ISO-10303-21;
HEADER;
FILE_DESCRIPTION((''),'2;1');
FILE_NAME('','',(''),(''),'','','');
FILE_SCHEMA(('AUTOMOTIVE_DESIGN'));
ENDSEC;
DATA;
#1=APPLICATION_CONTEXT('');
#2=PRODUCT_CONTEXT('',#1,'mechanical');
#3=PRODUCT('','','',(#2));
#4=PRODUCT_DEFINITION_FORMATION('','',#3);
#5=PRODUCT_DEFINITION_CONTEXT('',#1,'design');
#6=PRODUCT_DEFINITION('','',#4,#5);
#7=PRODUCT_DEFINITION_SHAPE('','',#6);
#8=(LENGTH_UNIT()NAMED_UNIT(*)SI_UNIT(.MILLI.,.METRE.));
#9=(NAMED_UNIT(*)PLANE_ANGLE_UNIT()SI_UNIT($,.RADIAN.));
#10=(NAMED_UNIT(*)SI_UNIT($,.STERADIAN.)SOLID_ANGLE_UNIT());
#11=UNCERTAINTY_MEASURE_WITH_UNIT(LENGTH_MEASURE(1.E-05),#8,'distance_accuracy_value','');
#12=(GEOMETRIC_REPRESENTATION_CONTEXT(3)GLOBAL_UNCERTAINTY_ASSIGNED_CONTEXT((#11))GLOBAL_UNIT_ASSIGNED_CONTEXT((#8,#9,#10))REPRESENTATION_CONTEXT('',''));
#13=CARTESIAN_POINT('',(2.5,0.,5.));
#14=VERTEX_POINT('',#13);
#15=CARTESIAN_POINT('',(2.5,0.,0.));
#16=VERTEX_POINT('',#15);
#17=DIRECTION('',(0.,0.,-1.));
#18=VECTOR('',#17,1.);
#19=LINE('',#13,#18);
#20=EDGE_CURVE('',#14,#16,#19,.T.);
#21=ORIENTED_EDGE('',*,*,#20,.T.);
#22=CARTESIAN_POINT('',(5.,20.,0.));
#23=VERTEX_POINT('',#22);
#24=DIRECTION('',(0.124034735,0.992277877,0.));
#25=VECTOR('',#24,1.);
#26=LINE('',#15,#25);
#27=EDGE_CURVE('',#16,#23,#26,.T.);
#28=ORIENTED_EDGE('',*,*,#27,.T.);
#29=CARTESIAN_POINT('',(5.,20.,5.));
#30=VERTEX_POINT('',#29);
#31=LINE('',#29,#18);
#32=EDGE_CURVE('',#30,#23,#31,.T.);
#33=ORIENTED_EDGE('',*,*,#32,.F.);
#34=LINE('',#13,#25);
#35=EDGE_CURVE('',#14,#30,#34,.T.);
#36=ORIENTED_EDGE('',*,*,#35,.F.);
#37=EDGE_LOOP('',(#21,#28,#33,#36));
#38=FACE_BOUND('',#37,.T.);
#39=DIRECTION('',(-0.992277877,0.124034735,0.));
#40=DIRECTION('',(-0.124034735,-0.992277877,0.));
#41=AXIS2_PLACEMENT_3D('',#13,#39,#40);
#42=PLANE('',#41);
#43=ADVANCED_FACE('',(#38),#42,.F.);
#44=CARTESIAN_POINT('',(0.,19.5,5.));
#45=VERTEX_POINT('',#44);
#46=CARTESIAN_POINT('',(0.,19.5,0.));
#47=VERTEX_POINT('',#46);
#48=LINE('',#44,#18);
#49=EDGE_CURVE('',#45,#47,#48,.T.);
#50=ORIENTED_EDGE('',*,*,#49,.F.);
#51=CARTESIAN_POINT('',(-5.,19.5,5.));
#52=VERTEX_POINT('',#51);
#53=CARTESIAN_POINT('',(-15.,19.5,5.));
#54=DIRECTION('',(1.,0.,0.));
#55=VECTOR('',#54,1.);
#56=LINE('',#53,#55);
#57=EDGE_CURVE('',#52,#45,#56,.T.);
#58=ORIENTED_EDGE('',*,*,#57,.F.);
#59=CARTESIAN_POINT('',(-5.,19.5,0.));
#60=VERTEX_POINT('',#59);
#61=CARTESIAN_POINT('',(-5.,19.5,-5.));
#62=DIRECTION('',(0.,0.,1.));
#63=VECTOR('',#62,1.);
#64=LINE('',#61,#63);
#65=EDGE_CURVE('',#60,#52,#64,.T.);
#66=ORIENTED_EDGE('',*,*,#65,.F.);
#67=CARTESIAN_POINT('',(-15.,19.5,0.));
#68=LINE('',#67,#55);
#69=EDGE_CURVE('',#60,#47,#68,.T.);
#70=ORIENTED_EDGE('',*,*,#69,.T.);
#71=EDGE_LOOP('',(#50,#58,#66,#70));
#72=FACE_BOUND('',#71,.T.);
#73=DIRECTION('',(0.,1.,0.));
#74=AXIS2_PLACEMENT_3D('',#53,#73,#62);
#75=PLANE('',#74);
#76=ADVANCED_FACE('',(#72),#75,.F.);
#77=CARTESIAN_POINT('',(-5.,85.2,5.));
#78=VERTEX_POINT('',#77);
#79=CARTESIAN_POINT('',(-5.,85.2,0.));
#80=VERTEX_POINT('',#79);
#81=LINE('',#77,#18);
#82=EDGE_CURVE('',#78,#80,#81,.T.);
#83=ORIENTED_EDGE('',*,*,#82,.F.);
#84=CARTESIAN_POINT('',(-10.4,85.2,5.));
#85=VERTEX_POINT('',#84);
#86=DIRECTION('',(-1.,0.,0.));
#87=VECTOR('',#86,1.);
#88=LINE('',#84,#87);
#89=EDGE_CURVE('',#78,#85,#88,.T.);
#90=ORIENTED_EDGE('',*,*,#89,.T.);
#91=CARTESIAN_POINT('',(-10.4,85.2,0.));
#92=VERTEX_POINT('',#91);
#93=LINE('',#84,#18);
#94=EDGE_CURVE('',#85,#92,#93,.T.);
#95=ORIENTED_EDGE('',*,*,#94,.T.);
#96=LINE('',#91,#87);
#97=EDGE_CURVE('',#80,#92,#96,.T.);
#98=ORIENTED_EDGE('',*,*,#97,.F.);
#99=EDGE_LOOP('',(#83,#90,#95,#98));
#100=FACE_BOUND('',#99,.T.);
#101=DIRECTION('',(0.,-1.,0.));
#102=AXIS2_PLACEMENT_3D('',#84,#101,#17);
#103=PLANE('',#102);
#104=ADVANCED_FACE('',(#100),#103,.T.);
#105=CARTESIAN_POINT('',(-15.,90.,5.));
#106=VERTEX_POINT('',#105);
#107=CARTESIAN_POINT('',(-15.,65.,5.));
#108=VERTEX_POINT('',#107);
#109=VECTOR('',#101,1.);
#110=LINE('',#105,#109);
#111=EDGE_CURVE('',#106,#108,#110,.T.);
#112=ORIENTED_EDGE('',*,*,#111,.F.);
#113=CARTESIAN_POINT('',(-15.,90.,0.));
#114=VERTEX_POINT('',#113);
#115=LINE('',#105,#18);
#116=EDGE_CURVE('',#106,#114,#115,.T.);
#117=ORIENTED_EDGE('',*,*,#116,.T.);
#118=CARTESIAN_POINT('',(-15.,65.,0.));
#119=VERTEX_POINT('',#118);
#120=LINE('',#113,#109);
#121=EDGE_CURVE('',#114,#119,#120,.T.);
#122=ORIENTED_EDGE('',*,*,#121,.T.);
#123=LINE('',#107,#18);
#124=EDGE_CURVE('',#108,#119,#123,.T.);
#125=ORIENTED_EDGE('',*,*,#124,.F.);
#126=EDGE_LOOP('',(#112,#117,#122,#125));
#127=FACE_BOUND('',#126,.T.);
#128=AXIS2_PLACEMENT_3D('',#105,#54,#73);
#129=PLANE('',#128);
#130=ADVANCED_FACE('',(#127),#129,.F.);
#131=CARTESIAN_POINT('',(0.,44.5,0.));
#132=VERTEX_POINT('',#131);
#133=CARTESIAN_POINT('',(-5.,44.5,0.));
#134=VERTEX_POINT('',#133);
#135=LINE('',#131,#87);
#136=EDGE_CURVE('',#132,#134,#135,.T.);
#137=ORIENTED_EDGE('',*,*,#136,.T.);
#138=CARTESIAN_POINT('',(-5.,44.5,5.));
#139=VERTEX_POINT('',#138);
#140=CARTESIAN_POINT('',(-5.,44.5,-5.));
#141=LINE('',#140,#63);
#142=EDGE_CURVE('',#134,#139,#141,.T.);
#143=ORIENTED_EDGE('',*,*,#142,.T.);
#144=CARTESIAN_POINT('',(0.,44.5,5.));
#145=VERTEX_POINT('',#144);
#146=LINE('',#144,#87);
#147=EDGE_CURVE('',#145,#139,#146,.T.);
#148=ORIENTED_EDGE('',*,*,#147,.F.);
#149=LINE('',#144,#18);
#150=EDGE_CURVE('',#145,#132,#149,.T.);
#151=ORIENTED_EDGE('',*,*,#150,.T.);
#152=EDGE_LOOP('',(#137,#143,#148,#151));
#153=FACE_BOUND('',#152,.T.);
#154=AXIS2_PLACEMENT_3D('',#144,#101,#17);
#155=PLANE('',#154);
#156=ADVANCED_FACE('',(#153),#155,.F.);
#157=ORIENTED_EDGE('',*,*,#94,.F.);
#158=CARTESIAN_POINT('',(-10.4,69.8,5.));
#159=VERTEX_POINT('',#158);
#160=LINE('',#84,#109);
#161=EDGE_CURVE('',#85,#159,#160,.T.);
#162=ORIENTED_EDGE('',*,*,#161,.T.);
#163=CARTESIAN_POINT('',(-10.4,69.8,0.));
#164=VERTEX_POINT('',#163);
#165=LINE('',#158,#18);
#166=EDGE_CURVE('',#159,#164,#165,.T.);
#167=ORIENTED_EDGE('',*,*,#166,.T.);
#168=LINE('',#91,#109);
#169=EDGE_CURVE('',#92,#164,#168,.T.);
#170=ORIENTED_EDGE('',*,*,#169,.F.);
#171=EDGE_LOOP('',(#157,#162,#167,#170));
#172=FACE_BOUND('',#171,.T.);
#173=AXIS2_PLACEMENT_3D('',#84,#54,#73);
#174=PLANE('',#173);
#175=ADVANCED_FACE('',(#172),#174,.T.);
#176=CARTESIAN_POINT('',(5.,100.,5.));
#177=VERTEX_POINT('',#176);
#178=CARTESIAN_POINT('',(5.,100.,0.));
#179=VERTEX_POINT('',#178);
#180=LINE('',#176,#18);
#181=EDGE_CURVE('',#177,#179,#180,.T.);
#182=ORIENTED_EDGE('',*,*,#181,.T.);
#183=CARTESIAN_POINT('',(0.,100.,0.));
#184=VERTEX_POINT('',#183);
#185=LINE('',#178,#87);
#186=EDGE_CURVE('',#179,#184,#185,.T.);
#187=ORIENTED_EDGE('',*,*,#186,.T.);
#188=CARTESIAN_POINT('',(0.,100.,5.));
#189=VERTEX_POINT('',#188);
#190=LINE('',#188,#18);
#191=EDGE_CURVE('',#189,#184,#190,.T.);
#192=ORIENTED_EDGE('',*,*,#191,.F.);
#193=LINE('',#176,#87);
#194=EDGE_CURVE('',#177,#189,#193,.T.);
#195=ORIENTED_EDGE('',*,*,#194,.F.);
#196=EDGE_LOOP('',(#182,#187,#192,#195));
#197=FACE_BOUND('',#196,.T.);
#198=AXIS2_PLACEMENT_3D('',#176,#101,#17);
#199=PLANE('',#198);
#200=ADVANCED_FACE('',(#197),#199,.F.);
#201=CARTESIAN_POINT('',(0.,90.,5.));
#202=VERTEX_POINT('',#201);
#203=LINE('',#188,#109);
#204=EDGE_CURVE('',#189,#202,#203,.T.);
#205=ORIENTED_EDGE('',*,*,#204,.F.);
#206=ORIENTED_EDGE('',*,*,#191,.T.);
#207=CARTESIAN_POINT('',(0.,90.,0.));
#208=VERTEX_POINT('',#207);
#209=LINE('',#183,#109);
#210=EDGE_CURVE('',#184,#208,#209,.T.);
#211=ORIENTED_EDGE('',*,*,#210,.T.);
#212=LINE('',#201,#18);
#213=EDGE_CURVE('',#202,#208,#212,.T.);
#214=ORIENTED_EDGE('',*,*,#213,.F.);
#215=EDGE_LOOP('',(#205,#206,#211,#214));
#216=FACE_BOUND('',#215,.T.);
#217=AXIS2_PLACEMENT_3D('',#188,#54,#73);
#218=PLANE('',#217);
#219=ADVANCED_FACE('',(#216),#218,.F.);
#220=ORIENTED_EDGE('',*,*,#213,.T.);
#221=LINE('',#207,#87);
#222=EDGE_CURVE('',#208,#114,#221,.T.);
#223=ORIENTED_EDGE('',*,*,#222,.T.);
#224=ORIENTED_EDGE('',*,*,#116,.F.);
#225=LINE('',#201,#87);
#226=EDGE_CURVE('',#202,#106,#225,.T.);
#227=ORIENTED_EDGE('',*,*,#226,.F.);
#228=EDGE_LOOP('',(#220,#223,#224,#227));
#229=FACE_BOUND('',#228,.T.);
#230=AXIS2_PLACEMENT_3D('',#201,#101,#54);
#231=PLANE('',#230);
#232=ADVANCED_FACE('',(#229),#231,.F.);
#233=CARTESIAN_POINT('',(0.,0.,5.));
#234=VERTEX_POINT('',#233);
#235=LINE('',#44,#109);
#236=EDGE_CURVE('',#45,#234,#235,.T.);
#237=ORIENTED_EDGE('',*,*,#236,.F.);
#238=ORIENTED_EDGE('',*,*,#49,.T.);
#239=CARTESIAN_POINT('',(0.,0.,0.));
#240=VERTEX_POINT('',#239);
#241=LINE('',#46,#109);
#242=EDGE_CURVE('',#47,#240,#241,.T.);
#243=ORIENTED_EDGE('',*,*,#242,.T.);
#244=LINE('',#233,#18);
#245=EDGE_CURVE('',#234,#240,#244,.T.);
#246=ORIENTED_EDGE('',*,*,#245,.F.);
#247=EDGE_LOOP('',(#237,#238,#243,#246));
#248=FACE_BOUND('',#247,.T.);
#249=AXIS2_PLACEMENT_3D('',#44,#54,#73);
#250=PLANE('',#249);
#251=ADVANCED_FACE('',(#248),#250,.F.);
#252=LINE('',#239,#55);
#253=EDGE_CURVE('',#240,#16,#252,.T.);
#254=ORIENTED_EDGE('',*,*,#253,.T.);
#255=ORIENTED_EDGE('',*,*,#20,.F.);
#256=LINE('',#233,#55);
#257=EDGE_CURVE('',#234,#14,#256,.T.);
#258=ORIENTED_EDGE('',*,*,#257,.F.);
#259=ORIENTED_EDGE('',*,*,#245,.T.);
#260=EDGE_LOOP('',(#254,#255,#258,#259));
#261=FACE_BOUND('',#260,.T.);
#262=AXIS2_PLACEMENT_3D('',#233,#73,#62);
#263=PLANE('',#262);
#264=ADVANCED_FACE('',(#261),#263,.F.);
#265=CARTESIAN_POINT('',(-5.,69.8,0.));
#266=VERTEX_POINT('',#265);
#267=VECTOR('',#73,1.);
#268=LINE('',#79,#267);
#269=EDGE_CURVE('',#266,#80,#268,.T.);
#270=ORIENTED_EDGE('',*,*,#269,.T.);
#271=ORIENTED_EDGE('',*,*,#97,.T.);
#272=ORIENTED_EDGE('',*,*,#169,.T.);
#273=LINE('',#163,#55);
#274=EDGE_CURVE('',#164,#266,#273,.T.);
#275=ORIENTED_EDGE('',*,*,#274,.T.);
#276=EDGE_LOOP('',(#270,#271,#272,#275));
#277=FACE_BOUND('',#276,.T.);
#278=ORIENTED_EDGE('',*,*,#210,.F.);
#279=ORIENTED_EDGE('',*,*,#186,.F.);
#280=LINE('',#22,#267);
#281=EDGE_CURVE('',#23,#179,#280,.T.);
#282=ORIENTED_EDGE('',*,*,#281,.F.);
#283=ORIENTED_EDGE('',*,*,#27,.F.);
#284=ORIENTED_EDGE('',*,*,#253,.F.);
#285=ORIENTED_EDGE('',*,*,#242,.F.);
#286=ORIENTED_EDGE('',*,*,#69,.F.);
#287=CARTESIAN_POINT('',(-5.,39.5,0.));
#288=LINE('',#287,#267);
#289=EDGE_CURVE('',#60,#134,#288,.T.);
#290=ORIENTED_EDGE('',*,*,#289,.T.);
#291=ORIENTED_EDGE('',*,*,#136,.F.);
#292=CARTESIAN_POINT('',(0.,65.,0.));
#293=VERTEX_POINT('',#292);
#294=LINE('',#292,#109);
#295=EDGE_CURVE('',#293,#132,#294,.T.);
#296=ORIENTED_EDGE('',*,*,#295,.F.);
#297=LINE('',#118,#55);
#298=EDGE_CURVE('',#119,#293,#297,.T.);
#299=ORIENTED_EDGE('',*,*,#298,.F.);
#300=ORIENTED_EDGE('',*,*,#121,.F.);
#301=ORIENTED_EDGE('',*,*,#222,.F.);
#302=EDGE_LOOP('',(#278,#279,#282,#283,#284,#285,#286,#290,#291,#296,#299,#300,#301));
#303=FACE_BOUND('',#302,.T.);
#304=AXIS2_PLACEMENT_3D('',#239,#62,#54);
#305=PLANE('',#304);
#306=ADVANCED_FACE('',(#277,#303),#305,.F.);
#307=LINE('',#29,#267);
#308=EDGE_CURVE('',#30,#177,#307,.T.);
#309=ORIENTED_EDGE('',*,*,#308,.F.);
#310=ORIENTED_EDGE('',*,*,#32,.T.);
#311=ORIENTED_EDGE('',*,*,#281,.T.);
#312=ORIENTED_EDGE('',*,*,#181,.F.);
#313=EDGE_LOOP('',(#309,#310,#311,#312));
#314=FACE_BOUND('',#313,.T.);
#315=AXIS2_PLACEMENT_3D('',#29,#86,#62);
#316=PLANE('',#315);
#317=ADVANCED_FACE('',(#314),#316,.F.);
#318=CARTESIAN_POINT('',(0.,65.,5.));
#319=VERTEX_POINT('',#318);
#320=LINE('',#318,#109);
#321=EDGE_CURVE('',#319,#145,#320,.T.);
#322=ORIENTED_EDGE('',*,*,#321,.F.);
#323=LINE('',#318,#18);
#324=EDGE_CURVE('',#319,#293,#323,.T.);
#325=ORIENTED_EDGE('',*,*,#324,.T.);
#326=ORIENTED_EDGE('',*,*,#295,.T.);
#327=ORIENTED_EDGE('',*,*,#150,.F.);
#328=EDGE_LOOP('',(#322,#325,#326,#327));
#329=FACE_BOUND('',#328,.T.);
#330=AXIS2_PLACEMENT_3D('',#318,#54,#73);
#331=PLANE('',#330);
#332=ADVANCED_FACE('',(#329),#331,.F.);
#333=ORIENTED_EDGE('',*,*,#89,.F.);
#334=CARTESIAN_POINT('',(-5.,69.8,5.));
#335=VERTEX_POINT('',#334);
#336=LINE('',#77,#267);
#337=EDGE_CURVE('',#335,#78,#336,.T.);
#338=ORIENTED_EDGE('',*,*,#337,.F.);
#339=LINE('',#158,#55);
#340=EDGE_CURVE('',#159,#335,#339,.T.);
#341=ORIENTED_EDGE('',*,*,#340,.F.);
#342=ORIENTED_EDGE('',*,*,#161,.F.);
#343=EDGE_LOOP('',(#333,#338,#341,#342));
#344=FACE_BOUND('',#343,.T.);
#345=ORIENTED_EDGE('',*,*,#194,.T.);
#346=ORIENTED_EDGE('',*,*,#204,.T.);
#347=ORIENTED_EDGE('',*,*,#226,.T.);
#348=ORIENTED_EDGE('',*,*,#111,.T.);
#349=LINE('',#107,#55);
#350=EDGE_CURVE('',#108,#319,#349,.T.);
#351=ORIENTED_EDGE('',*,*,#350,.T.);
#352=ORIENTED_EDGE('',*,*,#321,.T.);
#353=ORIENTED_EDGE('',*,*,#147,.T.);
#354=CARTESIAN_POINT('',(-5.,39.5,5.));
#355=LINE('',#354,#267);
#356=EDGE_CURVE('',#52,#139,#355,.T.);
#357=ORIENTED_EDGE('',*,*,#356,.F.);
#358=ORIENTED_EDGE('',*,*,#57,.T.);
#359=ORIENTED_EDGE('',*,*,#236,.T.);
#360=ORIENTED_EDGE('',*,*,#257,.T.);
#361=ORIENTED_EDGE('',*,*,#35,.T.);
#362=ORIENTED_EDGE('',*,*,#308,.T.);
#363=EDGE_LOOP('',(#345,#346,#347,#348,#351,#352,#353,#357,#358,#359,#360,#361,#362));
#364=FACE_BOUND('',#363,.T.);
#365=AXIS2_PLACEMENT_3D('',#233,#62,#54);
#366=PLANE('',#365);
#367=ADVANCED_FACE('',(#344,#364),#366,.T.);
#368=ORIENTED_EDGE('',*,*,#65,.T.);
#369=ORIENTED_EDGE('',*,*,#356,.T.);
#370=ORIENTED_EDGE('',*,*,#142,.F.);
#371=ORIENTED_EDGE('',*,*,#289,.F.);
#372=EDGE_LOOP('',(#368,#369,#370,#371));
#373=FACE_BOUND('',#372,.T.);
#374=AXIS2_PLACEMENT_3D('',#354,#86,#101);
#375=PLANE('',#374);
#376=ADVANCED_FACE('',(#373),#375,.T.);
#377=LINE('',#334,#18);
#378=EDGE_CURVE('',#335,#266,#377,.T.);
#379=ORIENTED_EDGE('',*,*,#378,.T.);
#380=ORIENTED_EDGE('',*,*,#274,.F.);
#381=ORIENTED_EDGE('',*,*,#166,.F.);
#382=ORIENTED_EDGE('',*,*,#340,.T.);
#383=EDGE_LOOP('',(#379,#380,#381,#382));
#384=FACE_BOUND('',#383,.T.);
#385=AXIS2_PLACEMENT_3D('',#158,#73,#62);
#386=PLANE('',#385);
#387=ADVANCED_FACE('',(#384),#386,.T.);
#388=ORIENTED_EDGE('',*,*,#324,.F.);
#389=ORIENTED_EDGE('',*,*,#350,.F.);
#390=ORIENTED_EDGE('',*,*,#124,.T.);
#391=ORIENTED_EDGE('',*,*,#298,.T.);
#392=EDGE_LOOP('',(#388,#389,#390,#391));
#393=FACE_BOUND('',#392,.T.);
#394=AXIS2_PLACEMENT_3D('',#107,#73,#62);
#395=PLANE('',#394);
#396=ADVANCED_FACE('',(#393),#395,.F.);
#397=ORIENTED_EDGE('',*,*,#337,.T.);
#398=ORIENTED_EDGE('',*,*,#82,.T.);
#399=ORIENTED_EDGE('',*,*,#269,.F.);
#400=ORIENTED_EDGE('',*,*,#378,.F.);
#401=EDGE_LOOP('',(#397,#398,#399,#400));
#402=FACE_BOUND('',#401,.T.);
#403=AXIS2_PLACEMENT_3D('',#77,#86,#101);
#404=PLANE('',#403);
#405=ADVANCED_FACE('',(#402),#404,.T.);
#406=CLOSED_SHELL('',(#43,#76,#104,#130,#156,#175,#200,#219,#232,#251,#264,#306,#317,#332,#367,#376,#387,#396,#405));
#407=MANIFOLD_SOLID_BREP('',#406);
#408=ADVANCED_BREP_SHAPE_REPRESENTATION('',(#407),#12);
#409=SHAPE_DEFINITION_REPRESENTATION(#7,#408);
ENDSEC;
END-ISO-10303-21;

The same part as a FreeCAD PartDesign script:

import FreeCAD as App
import Part
import Sketcher
from FreeCAD import Vector


def add_polygon(sketch, points):
    """Adds a closed chain of lines whose ends are joined by coincident constraints."""
    first, n = sketch.GeometryCount, len(points)
    for a, b in zip(points, points[1:] + points[:1]):
        sketch.addGeometry(Part.LineSegment(App.Vector(*a, 0), App.Vector(*b, 0)), False)
    for i in range(n):
        sketch.addConstraint(Sketcher.Constraint("Coincident", first + i, 2, first + (i + 1) % n, 1))

doc = App.newDocument("Part")
params = doc.addObject("Spreadsheet::Sheet", "Params")
for row, (alias, value) in enumerate([
    ("sketch1_width", "5 mm"),
    ("sketch1_width2", "15 mm"),
    ("sketch1_height", "80 mm"),
    ("sketch1_height2", "10 mm"),
    ("sketch1_height3", "25 mm"),
    ("pad1_length", "5 mm"),
    ("sketch2_width", "10 mm"),
    ("sketch2_height", "25 mm"),
    ("pocket1_length", "10 mm"),
], start=1):
    params.set(f"A{row}", alias)
    params.set(f"B{row}", "=" + value)
    params.setAlias(f"B{row}", alias)

body = doc.addObject("PartDesign::Body", "Body")

sketch1 = body.newObject("Sketcher::SketchObject", "Sketch")
sketch1.AttachmentSupport = (doc.getObject("XY_Plane"), [""])
sketch1.MapMode = "FlatFace"
add_polygon(sketch1, [(0, 0), (2.5, 0), (5, 20), (5, 100), (0, 100), (0, 90), (-15, 90), (-15, 65), (0, 65), (0, 44.5), (-15, 44.5), (-15, 19.5), (0, 19.5)])
add_polygon(sketch1, [(-5, 24.5), (-10, 24.5), (-10, 39.5), (-5, 39.5)])
add_polygon(sketch1, [(-5, 69.8), (-10.4, 69.8), (-10.4, 85.2), (-5, 85.2)])
sketch1.addConstraint([
    Sketcher.Constraint("Horizontal", 0),
    Sketcher.Constraint("Vertical", 2),
    Sketcher.Constraint("Horizontal", 3),
    Sketcher.Constraint("Vertical", 4),
    Sketcher.Constraint("Horizontal", 5),
    Sketcher.Constraint("Vertical", 6),
    Sketcher.Constraint("Horizontal", 7),
    Sketcher.Constraint("Vertical", 8),
    Sketcher.Constraint("Horizontal", 9),
    Sketcher.Constraint("Vertical", 10),
    Sketcher.Constraint("Horizontal", 11),
    Sketcher.Constraint("Vertical", 12),
    Sketcher.Constraint("Horizontal", 13),
    Sketcher.Constraint("Vertical", 14),
    Sketcher.Constraint("Horizontal", 15),
    Sketcher.Constraint("Vertical", 16),
    Sketcher.Constraint("Horizontal", 17),
    Sketcher.Constraint("Vertical", 18),
    Sketcher.Constraint("Horizontal", 19),
    Sketcher.Constraint("Vertical", 20),
    Sketcher.Constraint("Coincident", 12, 2, -1, 1),
    Sketcher.Constraint("PointOnObject", 3, 2, -2),
    Sketcher.Constraint("PointOnObject", 7, 2, -2),
    Sketcher.Constraint("Vertical", 6, 2, 9, 2),
    Sketcher.Constraint("Vertical", 16, 2, 19, 2),
    Sketcher.Constraint("Equal", 3, 13),
    Sketcher.Constraint("Equal", 6, 10),
    Sketcher.Constraint("Equal", 11, 14),
    Sketcher.Constraint("DistanceX", 3, 2, 3, 1, 5.0),
    Sketcher.Constraint("DistanceX", 5, 2, 5, 1, 15.0),
    Sketcher.Constraint("DistanceY", 2, 1, 2, 2, 80.0),
    Sketcher.Constraint("DistanceY", 4, 2, 4, 1, 10.0),
    Sketcher.Constraint("DistanceY", 6, 2, 6, 1, 25.0),
    Sketcher.Constraint("DistanceX", 0, 1, 0, 2, 2.5),
    Sketcher.Constraint("DistanceX", 17, 2, 17, 1, 5.4),
    Sketcher.Constraint("DistanceY", 8, 2, 8, 1, 20.5),
    Sketcher.Constraint("DistanceY", 12, 2, 12, 1, 19.5),
    Sketcher.Constraint("DistanceY", 18, 1, 18, 2, 15.4),
    Sketcher.Constraint("DistanceX", 13, 2, -1, 1, 10.0),
    Sketcher.Constraint("DistanceY", 10, 2, 13, 2, 5.0),
    Sketcher.Constraint("DistanceY", -1, 1, 17, 2, 69.8),
])
sketch1.setExpression("Constraints[49]", "Params.sketch1_width")
sketch1.setExpression("Constraints[50]", "Params.sketch1_width2")
sketch1.setExpression("Constraints[51]", "Params.sketch1_height")
sketch1.setExpression("Constraints[52]", "Params.sketch1_height2")
sketch1.setExpression("Constraints[53]", "Params.sketch1_height3")
pad1 = body.newObject("PartDesign::Pad", "Pad")
pad1.Profile = sketch1
pad1.setExpression("Length", "Params.pad1_length")

sketch2 = body.newObject("Sketcher::SketchObject", "Sketch001")
sketch2.AttachmentSupport = (doc.getObject("XY_Plane"), [""])
sketch2.MapMode = "FlatFace"
sketch2.AttachmentOffset = App.Placement(Vector(0, 0, 5), App.Rotation())
add_polygon(sketch2, [(-15, 44.5), (-15, 19.5), (-5, 19.5), (-5, 44.5)])
sketch2.addConstraint([
    Sketcher.Constraint("Vertical", 0),
    Sketcher.Constraint("Horizontal", 1),
    Sketcher.Constraint("Vertical", 2),
    Sketcher.Constraint("Horizontal", 3),
    Sketcher.Constraint("DistanceX", 1, 1, 1, 2, 10.0),
    Sketcher.Constraint("DistanceY", 0, 2, 0, 1, 25.0),
    Sketcher.Constraint("DistanceX", 0, 2, -1, 1, 15.0),
    Sketcher.Constraint("DistanceY", -1, 1, 0, 2, 19.5),
])
sketch2.setExpression("Constraints[8]", "Params.sketch2_width")
sketch2.setExpression("Constraints[9]", "Params.sketch2_height")
pocket1 = body.newObject("PartDesign::Pocket", "Pocket")
pocket1.Profile = sketch2
pocket1.setExpression("Length", "Params.pocket1_length")

doc.recompute()
